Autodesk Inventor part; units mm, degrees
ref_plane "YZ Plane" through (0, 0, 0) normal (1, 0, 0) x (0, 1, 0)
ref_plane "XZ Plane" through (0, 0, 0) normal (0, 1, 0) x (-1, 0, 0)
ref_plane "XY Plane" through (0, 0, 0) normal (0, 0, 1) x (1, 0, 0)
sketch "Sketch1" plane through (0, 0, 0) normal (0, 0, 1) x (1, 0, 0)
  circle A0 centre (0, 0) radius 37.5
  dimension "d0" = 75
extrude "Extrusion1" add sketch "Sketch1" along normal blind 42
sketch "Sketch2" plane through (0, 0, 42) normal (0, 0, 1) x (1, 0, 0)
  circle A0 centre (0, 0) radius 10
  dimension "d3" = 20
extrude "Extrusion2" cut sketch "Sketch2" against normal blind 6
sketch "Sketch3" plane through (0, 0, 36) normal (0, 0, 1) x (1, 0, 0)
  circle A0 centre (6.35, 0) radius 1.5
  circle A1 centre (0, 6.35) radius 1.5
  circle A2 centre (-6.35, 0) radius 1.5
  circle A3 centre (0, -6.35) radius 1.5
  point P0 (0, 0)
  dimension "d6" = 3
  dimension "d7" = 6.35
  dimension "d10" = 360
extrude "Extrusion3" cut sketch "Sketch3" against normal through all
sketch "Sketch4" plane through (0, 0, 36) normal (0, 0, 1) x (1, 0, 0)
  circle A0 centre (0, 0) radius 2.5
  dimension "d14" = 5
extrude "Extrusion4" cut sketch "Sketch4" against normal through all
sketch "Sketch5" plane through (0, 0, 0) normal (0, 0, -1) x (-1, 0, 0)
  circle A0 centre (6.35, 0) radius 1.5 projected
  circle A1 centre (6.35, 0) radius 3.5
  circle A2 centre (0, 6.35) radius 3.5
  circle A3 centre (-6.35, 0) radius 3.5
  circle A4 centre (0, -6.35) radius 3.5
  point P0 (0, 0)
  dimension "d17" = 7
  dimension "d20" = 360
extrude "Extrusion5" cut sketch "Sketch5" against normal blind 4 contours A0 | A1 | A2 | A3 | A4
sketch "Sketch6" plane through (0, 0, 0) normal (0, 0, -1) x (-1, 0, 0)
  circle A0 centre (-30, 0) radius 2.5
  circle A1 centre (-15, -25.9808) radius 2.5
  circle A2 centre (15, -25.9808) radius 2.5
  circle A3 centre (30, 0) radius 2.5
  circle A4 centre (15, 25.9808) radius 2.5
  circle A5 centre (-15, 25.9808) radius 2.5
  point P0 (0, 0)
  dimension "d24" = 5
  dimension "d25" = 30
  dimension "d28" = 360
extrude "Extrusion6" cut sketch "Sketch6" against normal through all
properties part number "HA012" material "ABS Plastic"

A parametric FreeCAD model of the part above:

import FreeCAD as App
import Part
import Sketcher

V = App.Vector
Q = App.Units.Quantity

doc = App.newDocument("Part")
params = doc.addObject("Spreadsheet::Sheet", "Params")
for row, (alias, value) in enumerate([
    ("sketch1_diameter", "75 mm"),
    ("pad1_length", "42 mm"),
    ("sketch2_diameter", "20 mm"),
    ("pocket1_length", "6 mm"),
    ("sketch3_diameter", "3 mm"),
    ("sketch4_diameter", "5 mm"),
    ("sketch5_diameter", "7 mm"),
    ("pocket4_length", "4 mm"),
    ("sketch6_diameter", "5 mm"),
], start=1):
    params.set(f"A{row}", alias)
    params.set(f"B{row}", "=" + value)
    params.setAlias(f"B{row}", alias)

body = doc.addObject("PartDesign::Body", "Body")

# Sketch on XY plane
sketch1 = body.newObject("Sketcher::SketchObject", "Sketch")
sketch1.AttachmentSupport = (doc.getObject("XY_Plane"), [""])
sketch1.MapMode = "FlatFace"
sketch1.addGeometry(Part.Circle(V(0, 0, 0), V(0, 0, 1), 37.5), False)
sketch1.addConstraint([
    Sketcher.Constraint("Coincident", 0, 3, -1, 1),
    Sketcher.Constraint("Diameter", 0, Q("75 mm")),
])
sketch1.setExpression("Constraints[1]", "Params.sketch1_diameter")
pad1 = body.newObject("PartDesign::Pad", "Pad")
pad1.Profile = sketch1
pad1.setExpression("Length", "Params.pad1_length")

# Sketch on XY plane
sketch2 = body.newObject("Sketcher::SketchObject", "Sketch001")
sketch2.AttachmentSupport = (doc.getObject("XY_Plane"), [""])
sketch2.MapMode = "FlatFace"
sketch2.AttachmentOffset = App.Placement(V(0, 0, 42), App.Rotation())
sketch2.addGeometry(Part.Circle(V(0, 0, 0), V(0, 0, 1), 10), False)
sketch2.addConstraint([
    Sketcher.Constraint("Coincident", 0, 3, -1, 1),
    Sketcher.Constraint("Diameter", 0, Q("20 mm")),
])
sketch2.setExpression("Constraints[1]", "Params.sketch2_diameter")
pocket1 = body.newObject("PartDesign::Pocket", "Pocket")
pocket1.Profile = sketch2
pocket1.setExpression("Length", "Params.pocket1_length")

# Sketch on XY plane
sketch3 = body.newObject("Sketcher::SketchObject", "Sketch002")
sketch3.AttachmentSupport = (doc.getObject("XY_Plane"), [""])
sketch3.MapMode = "FlatFace"
sketch3.AttachmentOffset = App.Placement(V(0, 0, 36), App.Rotation())
sketch3.addGeometry([
    Part.Circle(V(6.35, 0, 0), V(0, 0, 1), 1.5),
    Part.Circle(V(0, 6.35, 0), V(0, 0, 1), 1.5),
    Part.Circle(V(-6.35, 0, 0), V(0, 0, 1), 1.5),
    Part.Circle(V(0, -6.35, 0), V(0, 0, 1), 1.5),
], False)
sketch3.addConstraint([
    Sketcher.Constraint("Equal", 0, 1),
    Sketcher.Constraint("Equal", 1, 2),
    Sketcher.Constraint("Equal", 2, 3),
    Sketcher.Constraint("Symmetric", 0, 3, 2, 3, -1, 1),
    Sketcher.Constraint("Symmetric", 1, 3, 3, 3, -1, 1),
    Sketcher.Constraint("PointOnObject", 0, 3, -1),
    Sketcher.Constraint("PointOnObject", 1, 3, -2),
    Sketcher.Constraint("Diameter", 0, Q("3 mm")),
    Sketcher.Constraint("DistanceX", -1, 1, 0, 3, Q("6.35 mm")),
    Sketcher.Constraint("DistanceY", -1, 1, 1, 3, Q("6.35 mm")),
])
sketch3.setExpression("Constraints[7]", "Params.sketch3_diameter")
pocket2 = body.newObject("PartDesign::Pocket", "Pocket001")
pocket2.Profile = sketch3
pocket2.Type = "ThroughAll"

# Sketch on XY plane
sketch4 = body.newObject("Sketcher::SketchObject", "Sketch003")
sketch4.AttachmentSupport = (doc.getObject("XY_Plane"), [""])
sketch4.MapMode = "FlatFace"
sketch4.AttachmentOffset = App.Placement(V(0, 0, 36), App.Rotation())
sketch4.addGeometry(Part.Circle(V(0, 0, 0), V(0, 0, 1), 2.5), False)
sketch4.addConstraint([
    Sketcher.Constraint("Coincident", 0, 3, -1, 1),
    Sketcher.Constraint("Diameter", 0, Q("5 mm")),
])
sketch4.setExpression("Constraints[1]", "Params.sketch4_diameter")
pocket3 = body.newObject("PartDesign::Pocket", "Pocket002")
pocket3.Profile = sketch4
pocket3.Type = "ThroughAll"

# Sketch on XY plane
sketch5 = body.newObject("Sketcher::SketchObject", "Sketch004")
sketch5.AttachmentSupport = (doc.getObject("XY_Plane"), [""])
sketch5.MapMode = "FlatFace"
sketch5.addGeometry([
    Part.Circle(V(-6.35, 0, 0), V(0, 0, 1), 3.5),
    Part.Circle(V(0, 6.35, 0), V(0, 0, 1), 3.5),
    Part.Circle(V(6.35, 0, 0), V(0, 0, 1), 3.5),
    Part.Circle(V(0, -6.35, 0), V(0, 0, 1), 3.5),
], False)
sketch5.addConstraint([
    Sketcher.Constraint("Equal", 0, 1),
    Sketcher.Constraint("Equal", 1, 2),
    Sketcher.Constraint("Equal", 2, 3),
    Sketcher.Constraint("Symmetric", 0, 3, 2, 3, -1, 1),
    Sketcher.Constraint("Symmetric", 1, 3, 3, 3, -1, 1),
    Sketcher.Constraint("PointOnObject", 0, 3, -1),
    Sketcher.Constraint("PointOnObject", 1, 3, -2),
    Sketcher.Constraint("Diameter", 0, Q("7 mm")),
    Sketcher.Constraint("DistanceX", 0, 3, 2, 3, Q("12.7 mm")),
    Sketcher.Constraint("DistanceY", 3, 3, 1, 3, Q("12.7 mm")),
])
sketch5.setExpression("Constraints[7]", "Params.sketch5_diameter")
pocket4 = body.newObject("PartDesign::Pocket", "Pocket003")
pocket4.Profile = sketch5
pocket4.setExpression("Length", "Params.pocket4_length")
pocket4.Reversed = True

# Sketch on XY plane
sketch6 = body.newObject("Sketcher::SketchObject", "Sketch005")
sketch6.AttachmentSupport = (doc.getObject("XY_Plane"), [""])
sketch6.MapMode = "FlatFace"
sketch6.addGeometry([
    Part.Circle(V(30, 0, 0), V(0, 0, 1), 2.5),  # 0
    Part.Circle(V(15, -25.9808, 0), V(0, 0, 1), 2.5),  # 1
    Part.Circle(V(-15, -25.9808, 0), V(0, 0, 1), 2.5),  # 2
    Part.Circle(V(-30, 0, 0), V(0, 0, 1), 2.5),  # 3
    Part.Circle(V(-15, 25.9808, 0), V(0, 0, 1), 2.5),  # 4
    Part.Circle(V(15, 25.9808, 0), V(0, 0, 1), 2.5),  # 5
], False)
sketch6.addConstraint([
    Sketcher.Constraint("Equal", 0, 1),
    Sketcher.Constraint("Equal", 1, 2),
    Sketcher.Constraint("Equal", 2, 3),
    Sketcher.Constraint("Equal", 3, 4),
    Sketcher.Constraint("Equal", 4, 5),
    Sketcher.Constraint("Symmetric", 0, 3, 3, 3, -1, 1),
    Sketcher.Constraint("Symmetric", 1, 3, 4, 3, -1, 1),
    Sketcher.Constraint("Symmetric", 2, 3, 5, 3, -1, 1),
    Sketcher.Constraint("Symmetric", 1, 3, 2, 3, -2),
    Sketcher.Constraint("PointOnObject", 0, 3, -1),
    Sketcher.Constraint("Diameter", 0, Q("5 mm")),
    Sketcher.Constraint("DistanceX", -1, 1, 0, 3, Q("30 mm")),
    Sketcher.Constraint("DistanceX", 2, 3, 1, 3, Q("30 mm")),
    Sketcher.Constraint("DistanceY", 1, 3, -1, 1, Q("25.9808 mm")),
])
sketch6.setExpression("Constraints[10]", "Params.sketch6_diameter")
pocket5 = body.newObject("PartDesign::Pocket", "Pocket004")
pocket5.Profile = sketch6
pocket5.Type = "ThroughAll"
pocket5.Reversed = True

doc.recompute()
